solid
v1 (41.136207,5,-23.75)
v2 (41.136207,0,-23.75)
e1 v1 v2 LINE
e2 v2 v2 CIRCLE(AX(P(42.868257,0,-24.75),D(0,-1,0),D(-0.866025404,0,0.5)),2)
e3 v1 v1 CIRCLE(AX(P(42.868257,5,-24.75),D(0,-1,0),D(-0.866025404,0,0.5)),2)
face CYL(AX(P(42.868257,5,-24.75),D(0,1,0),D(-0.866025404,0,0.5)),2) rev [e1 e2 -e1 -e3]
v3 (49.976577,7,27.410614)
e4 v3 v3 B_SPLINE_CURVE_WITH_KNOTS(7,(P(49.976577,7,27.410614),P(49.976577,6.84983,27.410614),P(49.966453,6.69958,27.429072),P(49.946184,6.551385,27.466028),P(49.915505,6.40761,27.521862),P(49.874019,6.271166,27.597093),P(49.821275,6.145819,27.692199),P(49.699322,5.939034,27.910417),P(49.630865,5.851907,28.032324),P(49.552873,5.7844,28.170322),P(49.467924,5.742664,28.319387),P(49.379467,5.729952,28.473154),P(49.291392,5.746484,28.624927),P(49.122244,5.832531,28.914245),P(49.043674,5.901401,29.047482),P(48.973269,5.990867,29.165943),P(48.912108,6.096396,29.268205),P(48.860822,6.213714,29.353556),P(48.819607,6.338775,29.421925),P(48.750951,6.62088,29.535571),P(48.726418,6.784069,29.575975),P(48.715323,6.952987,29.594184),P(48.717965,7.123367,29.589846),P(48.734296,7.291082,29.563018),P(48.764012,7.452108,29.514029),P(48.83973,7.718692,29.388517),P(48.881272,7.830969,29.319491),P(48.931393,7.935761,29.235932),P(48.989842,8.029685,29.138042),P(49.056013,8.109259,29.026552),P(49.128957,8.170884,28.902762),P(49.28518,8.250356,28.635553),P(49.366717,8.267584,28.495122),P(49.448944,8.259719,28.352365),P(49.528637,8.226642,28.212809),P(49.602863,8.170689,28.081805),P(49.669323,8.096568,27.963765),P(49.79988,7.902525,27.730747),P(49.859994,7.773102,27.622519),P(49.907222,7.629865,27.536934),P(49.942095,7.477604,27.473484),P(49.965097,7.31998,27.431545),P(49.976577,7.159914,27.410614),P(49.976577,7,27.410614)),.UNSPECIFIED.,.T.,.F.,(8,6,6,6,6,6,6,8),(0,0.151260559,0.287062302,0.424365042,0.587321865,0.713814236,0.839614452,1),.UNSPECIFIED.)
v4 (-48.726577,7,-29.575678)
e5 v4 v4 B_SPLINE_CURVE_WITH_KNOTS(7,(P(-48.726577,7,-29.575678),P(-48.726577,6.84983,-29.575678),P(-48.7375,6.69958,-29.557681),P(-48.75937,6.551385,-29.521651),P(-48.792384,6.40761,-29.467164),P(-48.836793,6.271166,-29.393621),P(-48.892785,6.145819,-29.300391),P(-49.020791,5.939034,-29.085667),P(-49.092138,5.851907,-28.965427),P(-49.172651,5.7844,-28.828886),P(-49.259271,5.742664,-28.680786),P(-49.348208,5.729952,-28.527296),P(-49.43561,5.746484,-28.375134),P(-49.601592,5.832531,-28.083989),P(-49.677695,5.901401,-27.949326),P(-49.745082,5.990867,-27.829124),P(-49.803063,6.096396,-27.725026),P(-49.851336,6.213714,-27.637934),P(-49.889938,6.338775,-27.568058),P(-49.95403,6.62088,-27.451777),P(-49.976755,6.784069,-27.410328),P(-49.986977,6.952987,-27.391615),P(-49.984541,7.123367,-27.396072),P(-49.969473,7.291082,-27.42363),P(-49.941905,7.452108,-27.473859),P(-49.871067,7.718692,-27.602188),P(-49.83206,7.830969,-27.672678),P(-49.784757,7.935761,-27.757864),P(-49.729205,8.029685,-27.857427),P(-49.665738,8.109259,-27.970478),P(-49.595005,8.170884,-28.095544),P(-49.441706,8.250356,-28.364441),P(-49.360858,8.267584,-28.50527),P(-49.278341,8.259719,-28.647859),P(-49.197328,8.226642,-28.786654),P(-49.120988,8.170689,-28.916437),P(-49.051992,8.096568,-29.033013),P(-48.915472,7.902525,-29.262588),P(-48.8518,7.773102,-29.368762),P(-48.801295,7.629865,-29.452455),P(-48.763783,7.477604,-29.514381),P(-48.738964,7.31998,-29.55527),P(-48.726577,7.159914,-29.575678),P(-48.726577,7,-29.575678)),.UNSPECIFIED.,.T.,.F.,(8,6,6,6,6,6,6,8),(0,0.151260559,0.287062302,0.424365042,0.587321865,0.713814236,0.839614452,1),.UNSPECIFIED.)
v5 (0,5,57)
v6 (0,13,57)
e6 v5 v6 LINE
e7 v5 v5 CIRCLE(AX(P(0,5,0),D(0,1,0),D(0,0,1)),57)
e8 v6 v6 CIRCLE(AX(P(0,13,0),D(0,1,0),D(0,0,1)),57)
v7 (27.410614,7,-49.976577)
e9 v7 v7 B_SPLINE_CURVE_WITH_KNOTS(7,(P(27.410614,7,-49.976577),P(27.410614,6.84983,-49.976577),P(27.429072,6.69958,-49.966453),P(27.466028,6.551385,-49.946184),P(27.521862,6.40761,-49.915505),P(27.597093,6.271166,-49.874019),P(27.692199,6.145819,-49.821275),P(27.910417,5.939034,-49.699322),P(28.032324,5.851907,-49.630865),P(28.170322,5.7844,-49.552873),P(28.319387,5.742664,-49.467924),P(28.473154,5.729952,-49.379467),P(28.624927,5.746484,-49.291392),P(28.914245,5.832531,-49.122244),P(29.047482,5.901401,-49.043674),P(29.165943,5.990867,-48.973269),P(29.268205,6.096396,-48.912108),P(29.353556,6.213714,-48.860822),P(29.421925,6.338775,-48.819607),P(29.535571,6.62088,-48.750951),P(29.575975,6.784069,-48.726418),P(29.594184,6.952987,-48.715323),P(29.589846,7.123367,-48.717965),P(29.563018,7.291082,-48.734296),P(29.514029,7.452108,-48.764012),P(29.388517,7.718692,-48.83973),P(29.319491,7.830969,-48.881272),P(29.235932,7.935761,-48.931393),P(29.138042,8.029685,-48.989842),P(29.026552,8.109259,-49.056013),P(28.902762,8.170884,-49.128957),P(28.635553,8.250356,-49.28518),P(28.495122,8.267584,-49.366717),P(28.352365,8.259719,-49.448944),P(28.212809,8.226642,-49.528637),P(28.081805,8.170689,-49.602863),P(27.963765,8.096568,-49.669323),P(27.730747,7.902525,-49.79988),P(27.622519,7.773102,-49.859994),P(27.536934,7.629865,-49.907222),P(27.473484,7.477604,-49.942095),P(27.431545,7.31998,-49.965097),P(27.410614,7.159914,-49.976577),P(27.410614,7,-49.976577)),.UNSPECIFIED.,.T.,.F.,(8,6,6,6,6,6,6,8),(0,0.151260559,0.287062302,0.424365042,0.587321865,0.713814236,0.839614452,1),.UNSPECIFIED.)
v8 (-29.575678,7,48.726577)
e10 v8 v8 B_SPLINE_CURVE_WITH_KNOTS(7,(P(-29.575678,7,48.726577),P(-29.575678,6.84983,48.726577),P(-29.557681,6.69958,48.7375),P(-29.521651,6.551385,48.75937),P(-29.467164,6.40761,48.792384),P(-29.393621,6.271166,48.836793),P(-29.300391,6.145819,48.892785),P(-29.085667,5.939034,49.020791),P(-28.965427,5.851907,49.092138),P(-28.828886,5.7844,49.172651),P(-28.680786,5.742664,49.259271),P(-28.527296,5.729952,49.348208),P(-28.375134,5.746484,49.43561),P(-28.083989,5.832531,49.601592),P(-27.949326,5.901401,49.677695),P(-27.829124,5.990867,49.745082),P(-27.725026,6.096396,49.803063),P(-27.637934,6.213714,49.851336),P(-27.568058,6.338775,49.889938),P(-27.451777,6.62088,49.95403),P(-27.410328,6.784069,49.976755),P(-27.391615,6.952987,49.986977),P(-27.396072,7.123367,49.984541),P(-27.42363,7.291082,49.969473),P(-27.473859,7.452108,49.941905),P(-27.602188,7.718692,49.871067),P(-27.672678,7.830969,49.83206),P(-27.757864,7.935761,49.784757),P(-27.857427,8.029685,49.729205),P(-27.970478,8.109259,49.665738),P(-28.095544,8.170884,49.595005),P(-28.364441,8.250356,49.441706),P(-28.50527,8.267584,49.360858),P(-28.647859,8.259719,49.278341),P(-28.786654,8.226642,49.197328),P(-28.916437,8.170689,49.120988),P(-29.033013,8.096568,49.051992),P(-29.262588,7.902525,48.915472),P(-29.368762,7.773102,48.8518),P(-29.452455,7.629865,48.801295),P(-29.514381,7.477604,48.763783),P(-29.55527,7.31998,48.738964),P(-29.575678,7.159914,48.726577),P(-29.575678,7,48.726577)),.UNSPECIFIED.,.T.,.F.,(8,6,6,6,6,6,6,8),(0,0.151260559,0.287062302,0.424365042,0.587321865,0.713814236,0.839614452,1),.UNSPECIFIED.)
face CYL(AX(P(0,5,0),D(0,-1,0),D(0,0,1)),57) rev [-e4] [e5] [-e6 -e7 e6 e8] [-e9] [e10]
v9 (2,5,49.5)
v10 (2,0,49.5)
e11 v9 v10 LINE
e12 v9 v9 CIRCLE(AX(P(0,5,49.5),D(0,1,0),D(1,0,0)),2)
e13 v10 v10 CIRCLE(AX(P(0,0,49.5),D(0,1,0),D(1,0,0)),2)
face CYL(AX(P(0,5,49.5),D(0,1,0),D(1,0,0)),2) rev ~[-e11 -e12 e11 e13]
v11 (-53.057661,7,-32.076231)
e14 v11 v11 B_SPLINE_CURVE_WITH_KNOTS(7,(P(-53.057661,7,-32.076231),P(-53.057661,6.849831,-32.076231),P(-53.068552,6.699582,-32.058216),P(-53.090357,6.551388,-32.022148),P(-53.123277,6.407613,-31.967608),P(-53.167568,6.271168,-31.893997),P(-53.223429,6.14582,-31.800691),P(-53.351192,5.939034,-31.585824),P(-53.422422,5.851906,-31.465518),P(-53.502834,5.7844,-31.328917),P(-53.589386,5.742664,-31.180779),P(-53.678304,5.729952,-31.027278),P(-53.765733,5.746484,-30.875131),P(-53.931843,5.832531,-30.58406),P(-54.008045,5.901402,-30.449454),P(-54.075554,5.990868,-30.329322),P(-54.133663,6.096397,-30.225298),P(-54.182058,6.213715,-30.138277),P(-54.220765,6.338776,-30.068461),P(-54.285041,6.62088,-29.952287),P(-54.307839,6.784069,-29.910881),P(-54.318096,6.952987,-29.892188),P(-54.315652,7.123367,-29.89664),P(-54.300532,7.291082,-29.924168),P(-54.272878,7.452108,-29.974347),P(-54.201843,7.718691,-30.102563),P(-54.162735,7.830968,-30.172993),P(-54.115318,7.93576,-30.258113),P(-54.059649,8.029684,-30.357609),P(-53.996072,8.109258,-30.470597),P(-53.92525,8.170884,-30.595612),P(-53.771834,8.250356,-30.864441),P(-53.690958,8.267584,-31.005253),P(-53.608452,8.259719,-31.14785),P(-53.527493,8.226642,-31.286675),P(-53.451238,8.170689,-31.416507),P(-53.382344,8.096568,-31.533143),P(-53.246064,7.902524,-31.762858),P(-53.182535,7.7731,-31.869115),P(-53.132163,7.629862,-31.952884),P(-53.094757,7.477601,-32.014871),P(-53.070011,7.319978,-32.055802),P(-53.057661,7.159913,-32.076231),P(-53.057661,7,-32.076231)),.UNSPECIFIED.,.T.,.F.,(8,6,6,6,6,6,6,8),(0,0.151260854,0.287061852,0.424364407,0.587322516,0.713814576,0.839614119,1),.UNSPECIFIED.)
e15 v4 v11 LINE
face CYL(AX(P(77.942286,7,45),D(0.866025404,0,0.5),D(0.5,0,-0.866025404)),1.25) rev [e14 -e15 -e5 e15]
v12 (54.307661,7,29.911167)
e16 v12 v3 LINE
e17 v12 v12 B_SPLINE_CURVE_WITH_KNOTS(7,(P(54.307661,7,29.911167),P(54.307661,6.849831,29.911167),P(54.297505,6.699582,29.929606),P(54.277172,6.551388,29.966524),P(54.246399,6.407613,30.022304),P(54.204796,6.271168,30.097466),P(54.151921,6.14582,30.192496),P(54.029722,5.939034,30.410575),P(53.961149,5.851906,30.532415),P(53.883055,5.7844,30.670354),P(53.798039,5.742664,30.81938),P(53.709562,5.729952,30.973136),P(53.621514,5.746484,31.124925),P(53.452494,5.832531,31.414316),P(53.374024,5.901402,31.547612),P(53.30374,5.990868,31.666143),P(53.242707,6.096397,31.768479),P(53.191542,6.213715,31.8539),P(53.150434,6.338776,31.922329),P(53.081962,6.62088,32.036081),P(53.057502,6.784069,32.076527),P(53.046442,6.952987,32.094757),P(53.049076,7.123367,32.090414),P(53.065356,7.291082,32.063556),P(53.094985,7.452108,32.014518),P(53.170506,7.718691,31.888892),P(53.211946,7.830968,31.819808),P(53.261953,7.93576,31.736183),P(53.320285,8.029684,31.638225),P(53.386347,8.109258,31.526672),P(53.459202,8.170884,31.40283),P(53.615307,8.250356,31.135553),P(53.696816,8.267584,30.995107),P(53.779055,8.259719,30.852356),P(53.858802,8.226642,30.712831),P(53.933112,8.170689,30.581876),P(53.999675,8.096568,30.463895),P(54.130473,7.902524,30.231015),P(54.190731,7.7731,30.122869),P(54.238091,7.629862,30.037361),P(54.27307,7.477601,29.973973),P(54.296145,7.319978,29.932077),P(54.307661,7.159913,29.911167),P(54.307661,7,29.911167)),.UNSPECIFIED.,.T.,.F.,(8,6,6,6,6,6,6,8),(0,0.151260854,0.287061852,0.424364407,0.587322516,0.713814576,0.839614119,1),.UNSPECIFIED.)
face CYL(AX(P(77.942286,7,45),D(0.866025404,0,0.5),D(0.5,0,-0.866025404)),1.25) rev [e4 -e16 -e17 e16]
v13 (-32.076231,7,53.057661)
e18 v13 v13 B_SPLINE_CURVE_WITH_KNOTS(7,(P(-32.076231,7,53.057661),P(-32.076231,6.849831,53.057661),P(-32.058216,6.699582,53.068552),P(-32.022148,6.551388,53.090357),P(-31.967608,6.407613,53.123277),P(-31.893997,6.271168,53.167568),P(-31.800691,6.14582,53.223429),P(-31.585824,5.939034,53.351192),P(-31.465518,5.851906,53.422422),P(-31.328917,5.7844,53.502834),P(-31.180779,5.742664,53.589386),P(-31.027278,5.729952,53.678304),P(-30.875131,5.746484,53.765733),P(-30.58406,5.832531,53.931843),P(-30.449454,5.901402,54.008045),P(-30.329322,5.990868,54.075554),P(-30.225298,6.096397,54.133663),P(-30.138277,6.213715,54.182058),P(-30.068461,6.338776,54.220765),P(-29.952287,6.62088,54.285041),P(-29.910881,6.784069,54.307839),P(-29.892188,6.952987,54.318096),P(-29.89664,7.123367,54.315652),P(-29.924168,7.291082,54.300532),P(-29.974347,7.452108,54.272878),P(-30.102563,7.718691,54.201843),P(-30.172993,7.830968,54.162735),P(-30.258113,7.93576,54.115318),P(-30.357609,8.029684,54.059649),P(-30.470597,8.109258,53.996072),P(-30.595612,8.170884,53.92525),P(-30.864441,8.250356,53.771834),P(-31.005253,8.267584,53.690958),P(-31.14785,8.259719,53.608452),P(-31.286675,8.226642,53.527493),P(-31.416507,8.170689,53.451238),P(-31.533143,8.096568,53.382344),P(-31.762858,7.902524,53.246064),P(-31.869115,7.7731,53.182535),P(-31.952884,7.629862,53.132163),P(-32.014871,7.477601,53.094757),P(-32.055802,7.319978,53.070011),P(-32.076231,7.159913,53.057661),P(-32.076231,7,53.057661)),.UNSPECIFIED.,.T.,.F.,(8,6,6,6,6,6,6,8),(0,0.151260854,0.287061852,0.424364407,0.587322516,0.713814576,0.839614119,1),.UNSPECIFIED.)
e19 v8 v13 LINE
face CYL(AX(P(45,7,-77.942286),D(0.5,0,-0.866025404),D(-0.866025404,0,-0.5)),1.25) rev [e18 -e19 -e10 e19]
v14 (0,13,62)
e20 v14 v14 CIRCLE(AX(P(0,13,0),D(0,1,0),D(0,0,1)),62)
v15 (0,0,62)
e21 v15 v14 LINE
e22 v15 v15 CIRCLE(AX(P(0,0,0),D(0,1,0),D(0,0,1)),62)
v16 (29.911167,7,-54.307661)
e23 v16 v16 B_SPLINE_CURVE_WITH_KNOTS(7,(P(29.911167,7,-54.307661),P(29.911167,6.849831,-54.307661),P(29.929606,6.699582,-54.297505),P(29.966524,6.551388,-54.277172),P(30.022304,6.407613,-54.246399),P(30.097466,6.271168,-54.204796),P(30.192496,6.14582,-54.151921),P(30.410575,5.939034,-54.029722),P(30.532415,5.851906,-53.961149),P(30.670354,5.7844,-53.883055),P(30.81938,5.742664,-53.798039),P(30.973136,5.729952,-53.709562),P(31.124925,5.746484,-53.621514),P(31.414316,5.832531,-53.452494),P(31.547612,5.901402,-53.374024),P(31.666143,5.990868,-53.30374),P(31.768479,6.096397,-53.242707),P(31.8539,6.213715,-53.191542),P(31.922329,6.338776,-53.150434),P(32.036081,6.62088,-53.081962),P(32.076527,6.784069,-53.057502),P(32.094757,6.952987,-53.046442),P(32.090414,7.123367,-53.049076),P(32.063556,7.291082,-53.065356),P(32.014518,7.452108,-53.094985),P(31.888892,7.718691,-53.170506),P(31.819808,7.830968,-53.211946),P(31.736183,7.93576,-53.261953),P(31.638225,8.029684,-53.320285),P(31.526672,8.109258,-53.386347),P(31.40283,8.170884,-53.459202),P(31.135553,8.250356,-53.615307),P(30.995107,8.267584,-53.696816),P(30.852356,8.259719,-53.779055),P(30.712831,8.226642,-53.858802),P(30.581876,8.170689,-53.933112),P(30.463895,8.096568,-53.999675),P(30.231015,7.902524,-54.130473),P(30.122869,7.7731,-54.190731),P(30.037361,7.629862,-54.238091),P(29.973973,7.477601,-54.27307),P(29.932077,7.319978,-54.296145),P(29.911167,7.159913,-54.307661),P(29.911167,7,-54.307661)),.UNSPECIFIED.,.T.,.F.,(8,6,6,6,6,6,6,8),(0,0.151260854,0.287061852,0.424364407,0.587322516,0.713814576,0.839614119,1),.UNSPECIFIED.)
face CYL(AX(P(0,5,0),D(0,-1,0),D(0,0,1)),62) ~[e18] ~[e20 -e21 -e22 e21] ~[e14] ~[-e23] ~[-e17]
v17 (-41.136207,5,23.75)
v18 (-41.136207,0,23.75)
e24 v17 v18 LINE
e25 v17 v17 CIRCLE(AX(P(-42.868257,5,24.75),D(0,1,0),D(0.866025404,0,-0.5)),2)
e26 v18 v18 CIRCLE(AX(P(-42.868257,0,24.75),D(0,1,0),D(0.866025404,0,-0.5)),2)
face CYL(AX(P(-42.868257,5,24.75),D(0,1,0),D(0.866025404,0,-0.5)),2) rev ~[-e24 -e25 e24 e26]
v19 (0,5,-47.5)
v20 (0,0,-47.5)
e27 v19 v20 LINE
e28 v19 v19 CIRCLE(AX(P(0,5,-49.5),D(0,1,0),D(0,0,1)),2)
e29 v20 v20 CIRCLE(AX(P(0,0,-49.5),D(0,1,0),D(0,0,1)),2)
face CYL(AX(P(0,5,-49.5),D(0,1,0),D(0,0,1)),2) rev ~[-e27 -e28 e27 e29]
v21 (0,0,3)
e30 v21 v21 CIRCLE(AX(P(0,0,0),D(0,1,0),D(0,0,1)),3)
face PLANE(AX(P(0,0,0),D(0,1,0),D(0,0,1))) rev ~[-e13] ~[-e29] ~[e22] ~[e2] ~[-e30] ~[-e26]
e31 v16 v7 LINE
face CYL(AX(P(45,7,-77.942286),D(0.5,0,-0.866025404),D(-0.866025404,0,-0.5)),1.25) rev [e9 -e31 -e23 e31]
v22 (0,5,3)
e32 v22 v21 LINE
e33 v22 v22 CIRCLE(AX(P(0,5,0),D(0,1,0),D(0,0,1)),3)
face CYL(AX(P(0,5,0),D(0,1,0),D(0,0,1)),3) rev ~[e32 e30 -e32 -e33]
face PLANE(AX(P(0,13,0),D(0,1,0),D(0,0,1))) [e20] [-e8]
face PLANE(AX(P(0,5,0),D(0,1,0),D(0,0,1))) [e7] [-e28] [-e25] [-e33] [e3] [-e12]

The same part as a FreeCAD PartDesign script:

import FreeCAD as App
import Part
import Sketcher

V = App.Vector
Q = App.Units.Quantity

doc = App.newDocument("Part")
body = doc.addObject("PartDesign::Body", "Body")

sketch1 = body.newObject("Sketcher::SketchObject", "Sketch")
sketch1.AttachmentSupport = (doc.getObject("XZ_Plane"), [""])
sketch1.MapMode = "FlatFace"
sketch1.addGeometry(Part.Circle(V(0, 0, 0), V(0, 0, 1), 62), False)
sketch1.addConstraint([
    Sketcher.Constraint("Coincident", 0, 3, -1, 1),
    Sketcher.Constraint("Diameter", 0, Q("124 mm")),
])
pad1 = body.newObject("PartDesign::Pad", "Pad")
pad1.Profile = sketch1
pad1.Length = 5
pad1.Reversed = True

sketch2 = body.newObject("Sketcher::SketchObject", "Sketch001")
sketch2.AttachmentSupport = (doc.getObject("XZ_Plane"), [""])
sketch2.MapMode = "FlatFace"
sketch2.AttachmentOffset = App.Placement(V(0, 0, -5), App.Rotation())
sketch2.addGeometry(Part.Circle(V(0, -49.5, 0), V(0, 0, 1), 2), False)
sketch2.addConstraint([
    Sketcher.Constraint("PointOnObject", 0, 3, -2),
    Sketcher.Constraint("Diameter", 0, Q("4 mm")),
    Sketcher.Constraint("DistanceY", 0, 3, -1, 1, Q("49.5 mm")),
])
pocket1 = body.newObject("PartDesign::Pocket", "Pocket")
pocket1.Profile = sketch2
pocket1.Length = 5
pocket1.Reversed = True
doc.recompute()

polarpattern = body.newObject("PartDesign::PolarPattern", "PolarPattern")
polarpattern.Originals = [pocket1]
polarpattern.Axis = (doc.getObject("Y_Axis"), [""])
polarpattern.Angle = 120
polarpattern.Occurrences = 2
body.Tip = polarpattern
doc.recompute()

datumplane = body.newObject("PartDesign::Plane", "DatumPlane")
datumplane.Placement = App.Placement(V(0, 0, 0), App.Rotation(V(0.5, 0, -0.866025404), V(0, -1, 0), V(-0.866025404, 0, -0.5), "ZXY"))
mirrored = body.newObject("PartDesign::Mirrored", "Mirrored")
mirrored.Originals = [pocket1]
mirrored.MirrorPlane = (datumplane, [""])
body.Tip = mirrored

sketch3 = body.newObject("Sketcher::SketchObject", "Sketch002")
sketch3.AttachmentSupport = (doc.getObject("XZ_Plane"), [""])
sketch3.MapMode = "FlatFace"
sketch3.AttachmentOffset = App.Placement(V(0, 0, -5), App.Rotation())
sketch3.addGeometry(Part.Circle(V(0, 49.5, 0), V(0, 0, 1), 2), False)
sketch3.addConstraint([
    Sketcher.Constraint("PointOnObject", 0, 3, -2),
    Sketcher.Constraint("Diameter", 0, Q("4 mm")),
    Sketcher.Constraint("DistanceY", -1, 1, 0, 3, Q("49.5 mm")),
])
pocket2 = body.newObject("PartDesign::Pocket", "Pocket001")
pocket2.Profile = sketch3
pocket2.Length = 5
pocket2.Reversed = True

sketch4 = body.newObject("Sketcher::SketchObject", "Sketch003")
sketch4.AttachmentSupport = (doc.getObject("XZ_Plane"), [""])
sketch4.MapMode = "FlatFace"
sketch4.AttachmentOffset = App.Placement(V(0, 0, -5), App.Rotation())
sketch4.addGeometry([
    Part.Circle(V(0, 0, 0), V(0, 0, 1), 62),
    Part.Circle(V(0, 0, 0), V(0, 0, 1), 57),
], False)
sketch4.addConstraint([
    Sketcher.Constraint("Coincident", 0, 3, -1, 1),
    Sketcher.Constraint("Coincident", 1, 3, -1, 1),
    Sketcher.Constraint("Diameter", 0, Q("124 mm")),
    Sketcher.Constraint("Diameter", 1, Q("114 mm")),
])
pad2 = body.newObject("PartDesign::Pad", "Pad001")
pad2.Profile = sketch4
pad2.Length = 8
pad2.Reversed = True

sketch5 = body.newObject("Sketcher::SketchObject", "Sketch004")
sketch5.Placement = App.Placement(V(77.942286, 0, 45), App.Rotation(V(-0.5, 0, 0.866025404), V(0, 1, 0), V(-0.866025404, 0, -0.5), "ZXY"))
sketch5.addGeometry(Part.Circle(V(0, 7, 0), V(0, 0, 1), 1.2), False)
sketch5.addConstraint([
    Sketcher.Constraint("PointOnObject", 0, 3, -2),
    Sketcher.Constraint("Diameter", 0, Q("2.5 mm")),
    Sketcher.Constraint("DistanceY", -1, 1, 0, 3, Q("7 mm")),
])
pocket3 = body.newObject("PartDesign::Pocket", "Pocket002")
pocket3.Profile = sketch5
pocket3.Length = 192
pocket3.Reversed = True
doc.recompute()

polarpattern2 = body.newObject("PartDesign::PolarPattern", "PolarPattern001")
polarpattern2.Originals = [pocket3]
polarpattern2.Axis = (doc.getObject("Y_Axis"), [""])
polarpattern2.Angle = 90
polarpattern2.Occurrences = 2
body.Tip = polarpattern2

sketch6 = body.newObject("Sketcher::SketchObject", "Sketch005")
sketch6.AttachmentSupport = (doc.getObject("XZ_Plane"), [""])
sketch6.MapMode = "FlatFace"
sketch6.AttachmentOffset = App.Placement(V(0, 0, -5), App.Rotation())
sketch6.addGeometry(Part.Circle(V(0, 0, 0), V(0, 0, 1), 3), False)
sketch6.addConstraint([
    Sketcher.Constraint("Coincident", 0, 3, -1, 1),
    Sketcher.Constraint("Diameter", 0, Q("6 mm")),
])
pocket4 = body.newObject("PartDesign::Pocket", "Pocket003")
pocket4.Profile = sketch6
pocket4.Length = 10
pocket4.Reversed = True

doc.recompute()
